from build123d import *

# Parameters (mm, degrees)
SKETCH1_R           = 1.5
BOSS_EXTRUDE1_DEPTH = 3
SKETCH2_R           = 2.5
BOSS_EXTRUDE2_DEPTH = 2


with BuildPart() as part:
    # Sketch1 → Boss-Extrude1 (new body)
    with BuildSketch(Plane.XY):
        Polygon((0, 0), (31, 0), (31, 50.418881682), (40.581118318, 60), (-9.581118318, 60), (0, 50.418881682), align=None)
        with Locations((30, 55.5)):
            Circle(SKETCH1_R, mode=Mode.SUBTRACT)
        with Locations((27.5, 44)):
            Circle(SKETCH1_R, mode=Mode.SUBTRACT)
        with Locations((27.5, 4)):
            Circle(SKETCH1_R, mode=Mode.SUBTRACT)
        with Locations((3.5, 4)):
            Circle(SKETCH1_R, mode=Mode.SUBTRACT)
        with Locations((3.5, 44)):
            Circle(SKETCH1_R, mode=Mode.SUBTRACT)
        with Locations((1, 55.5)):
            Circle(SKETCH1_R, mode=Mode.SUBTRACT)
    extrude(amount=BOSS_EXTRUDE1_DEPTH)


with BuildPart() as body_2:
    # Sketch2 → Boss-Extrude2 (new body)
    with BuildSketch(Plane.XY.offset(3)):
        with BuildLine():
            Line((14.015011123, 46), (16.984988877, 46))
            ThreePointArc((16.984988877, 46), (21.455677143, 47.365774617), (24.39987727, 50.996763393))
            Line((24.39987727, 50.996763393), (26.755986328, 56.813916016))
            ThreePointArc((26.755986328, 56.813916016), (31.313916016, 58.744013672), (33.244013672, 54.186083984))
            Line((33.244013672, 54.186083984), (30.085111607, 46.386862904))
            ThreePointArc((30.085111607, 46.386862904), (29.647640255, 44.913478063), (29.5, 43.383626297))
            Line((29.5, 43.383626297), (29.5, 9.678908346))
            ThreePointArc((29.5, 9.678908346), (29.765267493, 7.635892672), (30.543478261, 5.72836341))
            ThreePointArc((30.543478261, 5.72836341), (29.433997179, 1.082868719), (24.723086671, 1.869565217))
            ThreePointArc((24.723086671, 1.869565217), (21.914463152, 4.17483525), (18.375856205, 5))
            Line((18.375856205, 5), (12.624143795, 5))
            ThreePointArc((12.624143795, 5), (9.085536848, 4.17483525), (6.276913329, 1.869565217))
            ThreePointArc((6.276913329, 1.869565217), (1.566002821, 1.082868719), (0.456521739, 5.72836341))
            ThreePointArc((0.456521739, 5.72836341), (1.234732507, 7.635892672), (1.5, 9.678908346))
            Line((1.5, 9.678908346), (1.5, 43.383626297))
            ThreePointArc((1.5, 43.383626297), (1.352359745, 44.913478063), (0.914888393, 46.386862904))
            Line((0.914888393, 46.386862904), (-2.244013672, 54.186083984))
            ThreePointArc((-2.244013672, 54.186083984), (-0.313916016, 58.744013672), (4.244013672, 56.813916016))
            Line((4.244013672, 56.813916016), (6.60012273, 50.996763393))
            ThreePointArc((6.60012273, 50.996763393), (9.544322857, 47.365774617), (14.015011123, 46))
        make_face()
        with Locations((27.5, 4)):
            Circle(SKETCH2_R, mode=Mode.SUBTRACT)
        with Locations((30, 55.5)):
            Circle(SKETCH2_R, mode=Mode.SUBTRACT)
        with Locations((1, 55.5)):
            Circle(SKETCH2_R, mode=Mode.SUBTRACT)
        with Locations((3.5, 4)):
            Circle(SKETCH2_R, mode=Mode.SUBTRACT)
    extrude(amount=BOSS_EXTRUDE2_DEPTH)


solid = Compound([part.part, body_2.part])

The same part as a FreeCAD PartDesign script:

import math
import FreeCAD as App
import Part
import Sketcher

V = App.Vector


def add_polygon(sketch, points):
    """Adds a closed chain of lines whose ends are joined by coincident constraints."""
    first, n = sketch.GeometryCount, len(points)
    for a, b in zip(points, points[1:] + points[:1]):
        sketch.addGeometry(Part.LineSegment(App.Vector(*a, 0), App.Vector(*b, 0)), False)
    for i in range(n):
        sketch.addConstraint(Sketcher.Constraint("Coincident", first + i, 2, first + (i + 1) % n, 1))

doc = App.newDocument("Part")
body = doc.addObject("PartDesign::Body", "Body")

# Sketch on XY plane
sketch1 = body.newObject("Sketcher::SketchObject", "Sketch")
sketch1.AttachmentSupport = (doc.getObject("XY_Plane"), [""])
sketch1.MapMode = "FlatFace"
add_polygon(sketch1, [(0, 0), (31, 0), (31, 50.4), (40.6, 60), (-9.6, 60), (0, 50.4)])  # lines 0-5
sketch1.addGeometry(Part.Circle(V(3.5, 4, 0), V(0, 0, 1), 1.5), False)  # 6
sketch1.addGeometry(Part.Circle(V(27.5, 4, 0), V(0, 0, 1), 1.5), False)  # 7
sketch1.addGeometry(Part.Circle(V(3.5, 44, 0), V(0, 0, 1), 1.5), False)  # 8
sketch1.addGeometry(Part.Circle(V(1, 55.5, 0), V(0, 0, 1), 1.5), False)  # 9
sketch1.addGeometry(Part.Circle(V(27.5, 44, 0), V(0, 0, 1), 1.5), False)  # 10
sketch1.addGeometry(Part.Circle(V(30, 55.5, 0), V(0, 0, 1), 1.5), False)  # 11
sketch1.addConstraint([
    Sketcher.Constraint("Horizontal", 0),
    Sketcher.Constraint("Vertical", 1),
    Sketcher.Constraint("Horizontal", 3),
    Sketcher.Constraint("Vertical", 5),
    Sketcher.Constraint("Coincident", 5, 2, -1, 1),
    Sketcher.Constraint("Equal", 6, 7),
    Sketcher.Constraint("Equal", 7, 8),
    Sketcher.Constraint("Equal", 8, 9),
    Sketcher.Constraint("Equal", 9, 10),
    Sketcher.Constraint("Equal", 10, 11),
    Sketcher.Constraint("Perpendicular", 2, 4),
    Sketcher.Constraint("Horizontal", 6, 3, 7, 3),
    Sketcher.Constraint("Horizontal", 8, 3, 10, 3),
    Sketcher.Constraint("Horizontal", 9, 3, 11, 3),
    Sketcher.Constraint("Horizontal", 1, 2, 4, 2),
    Sketcher.Constraint("Vertical", 6, 3, 8, 3),
    Sketcher.Constraint("Vertical", 7, 3, 10, 3),
    Sketcher.Constraint("Equal", 2, 4),
    Sketcher.Constraint("Diameter", 6, 3.0),
    Sketcher.Constraint("DistanceX", 0, 1, 0, 2, 31.0),
    Sketcher.Constraint("DistanceY", -1, 1, 6, 3, 4.0),
    Sketcher.Constraint("DistanceY", -1, 1, 8, 3, 44.0),
    Sketcher.Constraint("DistanceX", -1, 1, 9, 3, 1.0),
    Sketcher.Constraint("DistanceX", -1, 1, 11, 3, 30.0),
    Sketcher.Constraint("DistanceY", -1, 1, 2, 2, 60.0),
    Sketcher.Constraint("DistanceX", 6, 3, 7, 3, 24.0),
    Sketcher.Constraint("DistanceX", -1, 1, 6, 3, 3.5),
    Sketcher.Constraint("DistanceY", -1, 1, 9, 3, 55.5),
    Sketcher.Constraint("DistanceY", 1, 1, 1, 2, 50.418882),
])
pad1 = body.newObject("PartDesign::Pad", "Pad")
pad1.Profile = sketch1
pad1.Length = 3
body2 = doc.addObject("PartDesign::Body", "Body001")

# Sketch on XY plane
sketch2 = body2.newObject("Sketcher::SketchObject", "Sketch001")
sketch2.AttachmentSupport = (doc.getObject("XY_Plane001"), [""])
sketch2.MapMode = "FlatFace"
sketch2.AttachmentOffset = App.Placement(V(0, 0, 3), App.Rotation())
sketch2.addGeometry([
    Part.LineSegment(V(17, 46, 0), V(14, 46, 0)),  # 0
    Part.ArcOfCircle(Part.Circle(V(14, 54, 0), V(0, 0, 1), 8), math.radians(-158), math.radians(-90)),  # 1
    Part.LineSegment(V(6.6, 51, 0), V(4.2, 56.8, 0)),  # 2
    Part.ArcOfCircle(Part.Circle(V(1, 55.5, 0), V(0, 0, 1), 3.5), math.radians(22), math.radians(202)),  # 3
    Part.LineSegment(V(-2.2, 54.2, 0), V(0.9, 46.4, 0)),  # 4
    Part.ArcOfCircle(Part.Circle(V(-6.5, 43.4, 0), V(0, 0, 1), 8), math.radians(0), math.radians(22)),  # 5
    Part.LineSegment(V(1.5, 43.4, 0), V(1.5, 9.7, 0)),  # 6
    Part.ArcOfCircle(Part.Circle(V(-6.5, 9.7, 0), V(0, 0, 1), 8), math.radians(-30), math.radians(0)),  # 7
    Part.ArcOfCircle(Part.Circle(V(3.5, 4, 0), V(0, 0, 1), 3.5), math.radians(150), math.radians(323)),  # 8
    Part.ArcOfCircle(Part.Circle(V(12.6, -3, 0), V(0, 0, 1), 8), math.radians(90), math.radians(143)),  # 9
    Part.LineSegment(V(12.6, 5, 0), V(18.4, 5, 0)),  # 10
    Part.ArcOfCircle(Part.Circle(V(18.4, -3, 0), V(0, 0, 1), 8), math.radians(37), math.radians(90)),  # 11
    Part.ArcOfCircle(Part.Circle(V(27.5, 4, 0), V(0, 0, 1), 3.5), math.radians(-143), math.radians(30)),  # 12
    Part.ArcOfCircle(Part.Circle(V(37.5, 9.7, 0), V(0, 0, 1), 8), math.radians(180), math.radians(210)),  # 13
    Part.LineSegment(V(29.5, 9.7, 0), V(29.5, 43.4, 0)),  # 14
    Part.ArcOfCircle(Part.Circle(V(37.5, 43.4, 0), V(0, 0, 1), 8), math.radians(158), math.radians(180)),  # 15
    Part.LineSegment(V(30.1, 46.4, 0), V(33.2, 54.2, 0)),  # 16
    Part.ArcOfCircle(Part.Circle(V(30, 55.5, 0), V(0, 0, 1), 3.5), math.radians(-22), math.radians(158)),  # 17
    Part.LineSegment(V(26.8, 56.8, 0), V(24.4, 51, 0)),  # 18
    Part.ArcOfCircle(Part.Circle(V(17, 54, 0), V(0, 0, 1), 8), math.radians(-90), math.radians(-22)),  # 19
    Part.Circle(V(27.5, 4, 0), V(0, 0, 1), 2.5),  # 20
    Part.Circle(V(3.5, 4, 0), V(0, 0, 1), 2.5),  # 21
    Part.Circle(V(30, 55.5, 0), V(0, 0, 1), 2.5),  # 22
    Part.Circle(V(1, 55.5, 0), V(0, 0, 1), 2.5),  # 23
], False)
sketch2.addConstraint([
    Sketcher.Constraint("Tangent", 0, 2, 1, 2),
    Sketcher.Constraint("Tangent", 1, 1, 2, 1),
    Sketcher.Constraint("Tangent", 2, 2, 3, 1),
    Sketcher.Constraint("Tangent", 3, 2, 4, 1),
    Sketcher.Constraint("Tangent", 4, 2, 5, 2),
    Sketcher.Constraint("Tangent", 5, 1, 6, 1),
    Sketcher.Constraint("Tangent", 6, 2, 7, 2),
    Sketcher.Constraint("Tangent", 7, 1, 8, 1),
    Sketcher.Constraint("Tangent", 8, 2, 9, 2),
    Sketcher.Constraint("Tangent", 9, 1, 10, 1),
    Sketcher.Constraint("Tangent", 10, 2, 11, 2),
    Sketcher.Constraint("Tangent", 11, 1, 12, 1),
    Sketcher.Constraint("Tangent", 12, 2, 13, 2),
    Sketcher.Constraint("Tangent", 13, 1, 14, 1),
    Sketcher.Constraint("Tangent", 14, 2, 15, 2),
    Sketcher.Constraint("Tangent", 15, 1, 16, 1),
    Sketcher.Constraint("Tangent", 16, 2, 17, 1),
    Sketcher.Constraint("Tangent", 17, 2, 18, 1),
    Sketcher.Constraint("Tangent", 18, 2, 19, 2),
    Sketcher.Constraint("Tangent", 19, 1, 0, 1),
    Sketcher.Constraint("Horizontal", 0),
    Sketcher.Constraint("Vertical", 6),
    Sketcher.Constraint("Horizontal", 10),
    Sketcher.Constraint("Vertical", 14),
    Sketcher.Constraint("Coincident", 20, 3, 12, 3),
    Sketcher.Constraint("Coincident", 21, 3, 8, 3),
    Sketcher.Constraint("Coincident", 22, 3, 17, 3),
    Sketcher.Constraint("Coincident", 23, 3, 3, 3),
    Sketcher.Constraint("Equal", 1, 5),
    Sketcher.Constraint("Equal", 5, 7),
    Sketcher.Constraint("Equal", 3, 8),
    Sketcher.Constraint("Equal", 7, 9),
    Sketcher.Constraint("Equal", 9, 11),
    Sketcher.Constraint("Equal", 8, 12),
    Sketcher.Constraint("Equal", 11, 13),
    Sketcher.Constraint("Equal", 13, 15),
    Sketcher.Constraint("Equal", 12, 17),
    Sketcher.Constraint("Equal", 15, 19),
    Sketcher.Constraint("Equal", 20, 21),
    Sketcher.Constraint("Equal", 21, 22),
    Sketcher.Constraint("Equal", 22, 23),
    Sketcher.Constraint("Parallel", 2, 4),
    Sketcher.Constraint("Parallel", 16, 18),
    Sketcher.Constraint("Horizontal", 8, 3, 12, 3),
    Sketcher.Constraint("Horizontal", 7, 3, 13, 3),
    Sketcher.Constraint("Horizontal", 5, 3, 15, 3),
    Sketcher.Constraint("Horizontal", 3, 3, 17, 3),
    Sketcher.Constraint("Horizontal", 4, 2, 15, 1),
    Sketcher.Constraint("Diameter", 20, 5.0),
    Sketcher.Constraint("Radius", 1, 8.0),
    Sketcher.Constraint("Radius", 3, 3.5),
    Sketcher.Constraint("DistanceY", -1, 1, 1, 3, 54.0),
    Sketcher.Constraint("DistanceX", -1, 1, 3, 3, 1.0),
    Sketcher.Constraint("DistanceY", -1, 1, 8, 3, 4.0),
    Sketcher.Constraint("DistanceY", 9, 3, -1, 1, 3.0),
    Sketcher.Constraint("DistanceX", -1, 1, 17, 3, 30.0),
    Sketcher.Constraint("DistanceX", 7, 3, 8, 3, 10.0),
    Sketcher.Constraint("DistanceX", 8, 3, 12, 3, 24.0),
    Sketcher.Constraint("DistanceY", -1, 1, 3, 3, 55.5),
    Sketcher.Constraint("DistanceY", 4, 2, 1, 1, 4.6099),
])
pad2 = body2.newObject("PartDesign::Pad", "Pad001")
pad2.Profile = sketch2
pad2.Length = 2

doc.recompute()
